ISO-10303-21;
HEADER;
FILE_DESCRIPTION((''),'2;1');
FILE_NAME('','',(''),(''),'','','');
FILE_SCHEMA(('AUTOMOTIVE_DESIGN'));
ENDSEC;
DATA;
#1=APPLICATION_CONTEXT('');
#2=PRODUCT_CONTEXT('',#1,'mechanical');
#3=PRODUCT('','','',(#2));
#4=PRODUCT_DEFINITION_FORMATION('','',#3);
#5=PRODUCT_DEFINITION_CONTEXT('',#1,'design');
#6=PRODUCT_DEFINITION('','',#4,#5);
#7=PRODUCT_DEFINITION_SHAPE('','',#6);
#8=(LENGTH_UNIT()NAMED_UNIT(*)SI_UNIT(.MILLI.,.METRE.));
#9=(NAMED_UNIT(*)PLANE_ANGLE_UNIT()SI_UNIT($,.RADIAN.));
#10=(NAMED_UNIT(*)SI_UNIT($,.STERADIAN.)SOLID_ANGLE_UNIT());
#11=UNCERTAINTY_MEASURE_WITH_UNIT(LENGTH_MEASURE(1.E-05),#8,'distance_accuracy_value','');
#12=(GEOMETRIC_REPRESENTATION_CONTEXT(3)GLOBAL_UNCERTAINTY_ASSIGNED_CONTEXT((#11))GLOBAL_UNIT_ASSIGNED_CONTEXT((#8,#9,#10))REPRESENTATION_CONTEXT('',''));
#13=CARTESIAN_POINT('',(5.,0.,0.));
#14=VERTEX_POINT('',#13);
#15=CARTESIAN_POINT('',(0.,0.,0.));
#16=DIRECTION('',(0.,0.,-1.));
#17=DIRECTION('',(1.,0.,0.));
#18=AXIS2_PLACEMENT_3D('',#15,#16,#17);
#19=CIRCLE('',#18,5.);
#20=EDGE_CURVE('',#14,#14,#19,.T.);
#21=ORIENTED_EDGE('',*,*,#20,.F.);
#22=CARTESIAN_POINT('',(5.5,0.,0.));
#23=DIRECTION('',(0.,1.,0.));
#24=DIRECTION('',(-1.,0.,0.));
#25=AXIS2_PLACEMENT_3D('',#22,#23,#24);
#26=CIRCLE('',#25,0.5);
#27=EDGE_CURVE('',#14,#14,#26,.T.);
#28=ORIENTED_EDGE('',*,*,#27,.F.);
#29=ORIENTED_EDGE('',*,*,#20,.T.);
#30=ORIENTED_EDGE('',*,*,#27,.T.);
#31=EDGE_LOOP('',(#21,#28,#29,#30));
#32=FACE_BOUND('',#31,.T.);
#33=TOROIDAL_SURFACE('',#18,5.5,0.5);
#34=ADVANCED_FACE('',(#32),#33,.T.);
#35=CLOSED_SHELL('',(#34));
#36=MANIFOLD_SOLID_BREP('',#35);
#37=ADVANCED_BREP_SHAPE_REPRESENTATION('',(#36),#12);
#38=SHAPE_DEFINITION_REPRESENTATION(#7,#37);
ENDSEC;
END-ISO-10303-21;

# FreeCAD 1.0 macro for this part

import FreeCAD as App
import Part
import Sketcher
from FreeCAD import Vector
Q = App.Units.Quantity

doc = App.newDocument("Part")
body = doc.addObject("PartDesign::Body", "Body")

# Sketch on XZ plane
sketch1 = body.newObject("Sketcher::SketchObject", "Sketch")
sketch1.AttachmentSupport = (doc.getObject("XZ_Plane"), [""])
sketch1.MapMode = "FlatFace"
sketch1.addGeometry(Part.Circle(Vector(5.5, 0, 0), Vector(0, 0, 1), 0.5), False)
sketch1.addConstraint([
    Sketcher.Constraint("PointOnObject", 0, 3, -1),
    Sketcher.Constraint("Diameter", 0, Q("1 mm")),
    Sketcher.Constraint("DistanceX", -1, 1, 0, 3, Q("5.5 mm")),
])
revolution = body.newObject("PartDesign::Revolution", "Revolution")
revolution.Profile = sketch1
revolution.ReferenceAxis = (sketch1, ["V_Axis"])
revolution.Angle = 360

doc.recompute()
